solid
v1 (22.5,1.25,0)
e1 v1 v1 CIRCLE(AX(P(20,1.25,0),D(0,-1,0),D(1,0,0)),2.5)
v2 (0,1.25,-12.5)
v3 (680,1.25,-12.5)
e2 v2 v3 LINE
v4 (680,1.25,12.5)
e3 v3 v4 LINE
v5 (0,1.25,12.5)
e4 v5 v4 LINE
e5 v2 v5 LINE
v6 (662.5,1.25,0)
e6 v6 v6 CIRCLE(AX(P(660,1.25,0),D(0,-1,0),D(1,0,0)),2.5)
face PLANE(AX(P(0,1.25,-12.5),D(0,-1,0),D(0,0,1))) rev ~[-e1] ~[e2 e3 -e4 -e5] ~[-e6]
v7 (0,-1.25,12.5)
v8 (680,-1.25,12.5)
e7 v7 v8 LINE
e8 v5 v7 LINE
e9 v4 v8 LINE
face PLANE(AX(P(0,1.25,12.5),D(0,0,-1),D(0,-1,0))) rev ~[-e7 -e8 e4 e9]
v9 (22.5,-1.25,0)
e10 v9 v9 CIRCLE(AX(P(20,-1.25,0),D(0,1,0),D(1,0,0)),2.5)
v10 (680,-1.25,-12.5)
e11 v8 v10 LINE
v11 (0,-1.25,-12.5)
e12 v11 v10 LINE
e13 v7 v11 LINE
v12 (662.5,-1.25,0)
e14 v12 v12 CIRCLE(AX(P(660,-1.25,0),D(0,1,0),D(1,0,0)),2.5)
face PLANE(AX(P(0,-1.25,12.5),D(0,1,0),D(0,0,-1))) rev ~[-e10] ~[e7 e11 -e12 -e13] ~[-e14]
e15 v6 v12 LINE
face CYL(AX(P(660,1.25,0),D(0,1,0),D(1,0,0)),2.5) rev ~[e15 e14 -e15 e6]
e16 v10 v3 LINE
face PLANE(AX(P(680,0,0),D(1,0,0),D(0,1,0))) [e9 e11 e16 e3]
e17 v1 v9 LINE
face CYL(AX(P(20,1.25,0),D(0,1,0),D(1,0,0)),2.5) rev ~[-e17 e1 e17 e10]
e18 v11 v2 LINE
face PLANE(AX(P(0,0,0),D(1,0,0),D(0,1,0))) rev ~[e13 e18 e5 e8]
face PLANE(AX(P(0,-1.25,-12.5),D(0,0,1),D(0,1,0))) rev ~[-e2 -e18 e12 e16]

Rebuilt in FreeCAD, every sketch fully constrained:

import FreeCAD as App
import Part
import Sketcher
from FreeCAD import Vector


def add_polygon(sketch, points):
    """Adds a closed chain of lines whose ends are joined by coincident constraints."""
    first, n = sketch.GeometryCount, len(points)
    for a, b in zip(points, points[1:] + points[:1]):
        sketch.addGeometry(Part.LineSegment(App.Vector(*a, 0), App.Vector(*b, 0)), False)
    for i in range(n):
        sketch.addConstraint(Sketcher.Constraint("Coincident", first + i, 2, first + (i + 1) % n, 1))

doc = App.newDocument("Part")
body = doc.addObject("PartDesign::Body", "Body")

# Sketch on YZ plane
sketch1 = doc.addObject("Sketcher::SketchObject", "Sketch")
body.addObject(sketch1)
sketch1.AttachmentSupport = (doc.YZ_Plane, [""])
sketch1.MapMode = "FlatFace"
add_polygon(sketch1, [(1.2, -12.5), (1.2, 12.5), (-1.2, 12.5), (-1.2, -12.5)])  # lines 0-3
sketch1.addConstraint(Sketcher.Constraint("Vertical", 0))
sketch1.addConstraint(Sketcher.Constraint("Horizontal", 1))
sketch1.addConstraint(Sketcher.Constraint("Vertical", 2))
sketch1.addConstraint(Sketcher.Constraint("Horizontal", 3))
sketch1.addConstraint(Sketcher.Constraint("Symmetric", 0, 2, 2, 2, -1, 1))
sketch1.addConstraint(Sketcher.Constraint("DistanceY", 0, 1, 0, 2, 25.0))
sketch1.addConstraint(Sketcher.Constraint("DistanceX", 1, 2, 1, 1, 2.5))
pad1 = doc.addObject("PartDesign::Pad", "Pad")
body.addObject(pad1)
pad1.Profile = sketch1
pad1.Length = 680

# Sketch on XZ plane
sketch2 = doc.addObject("Sketcher::SketchObject", "Sketch001")
body.addObject(sketch2)
sketch2.AttachmentSupport = (doc.XZ_Plane, [""])
sketch2.MapMode = "FlatFace"
sketch2.AttachmentOffset = App.Placement(Vector(0, 0, -1.25), App.Rotation())
sketch2.addGeometry(Part.Circle(Vector(20, 0, 0), Vector(0, 0, 1), 2.5), False)
sketch2.addGeometry(Part.Circle(Vector(660, 0, 0), Vector(0, 0, 1), 2.5), False)
sketch2.addConstraint(Sketcher.Constraint("Equal", 0, 1))
sketch2.addConstraint(Sketcher.Constraint("PointOnObject", 0, 3, -1))
sketch2.addConstraint(Sketcher.Constraint("PointOnObject", 1, 3, -1))
sketch2.addConstraint(Sketcher.Constraint("Diameter", 0, 5.0))
sketch2.addConstraint(Sketcher.Constraint("DistanceX", -1, 1, 0, 3, 20.0))
sketch2.addConstraint(Sketcher.Constraint("DistanceX", 0, 3, 1, 3, 640.0))
pocket1 = doc.addObject("PartDesign::Pocket", "Pocket")
body.addObject(pocket1)
pocket1.Profile = sketch2
pocket1.Length = 680
pocket1.Reversed = True

doc.recompute()
